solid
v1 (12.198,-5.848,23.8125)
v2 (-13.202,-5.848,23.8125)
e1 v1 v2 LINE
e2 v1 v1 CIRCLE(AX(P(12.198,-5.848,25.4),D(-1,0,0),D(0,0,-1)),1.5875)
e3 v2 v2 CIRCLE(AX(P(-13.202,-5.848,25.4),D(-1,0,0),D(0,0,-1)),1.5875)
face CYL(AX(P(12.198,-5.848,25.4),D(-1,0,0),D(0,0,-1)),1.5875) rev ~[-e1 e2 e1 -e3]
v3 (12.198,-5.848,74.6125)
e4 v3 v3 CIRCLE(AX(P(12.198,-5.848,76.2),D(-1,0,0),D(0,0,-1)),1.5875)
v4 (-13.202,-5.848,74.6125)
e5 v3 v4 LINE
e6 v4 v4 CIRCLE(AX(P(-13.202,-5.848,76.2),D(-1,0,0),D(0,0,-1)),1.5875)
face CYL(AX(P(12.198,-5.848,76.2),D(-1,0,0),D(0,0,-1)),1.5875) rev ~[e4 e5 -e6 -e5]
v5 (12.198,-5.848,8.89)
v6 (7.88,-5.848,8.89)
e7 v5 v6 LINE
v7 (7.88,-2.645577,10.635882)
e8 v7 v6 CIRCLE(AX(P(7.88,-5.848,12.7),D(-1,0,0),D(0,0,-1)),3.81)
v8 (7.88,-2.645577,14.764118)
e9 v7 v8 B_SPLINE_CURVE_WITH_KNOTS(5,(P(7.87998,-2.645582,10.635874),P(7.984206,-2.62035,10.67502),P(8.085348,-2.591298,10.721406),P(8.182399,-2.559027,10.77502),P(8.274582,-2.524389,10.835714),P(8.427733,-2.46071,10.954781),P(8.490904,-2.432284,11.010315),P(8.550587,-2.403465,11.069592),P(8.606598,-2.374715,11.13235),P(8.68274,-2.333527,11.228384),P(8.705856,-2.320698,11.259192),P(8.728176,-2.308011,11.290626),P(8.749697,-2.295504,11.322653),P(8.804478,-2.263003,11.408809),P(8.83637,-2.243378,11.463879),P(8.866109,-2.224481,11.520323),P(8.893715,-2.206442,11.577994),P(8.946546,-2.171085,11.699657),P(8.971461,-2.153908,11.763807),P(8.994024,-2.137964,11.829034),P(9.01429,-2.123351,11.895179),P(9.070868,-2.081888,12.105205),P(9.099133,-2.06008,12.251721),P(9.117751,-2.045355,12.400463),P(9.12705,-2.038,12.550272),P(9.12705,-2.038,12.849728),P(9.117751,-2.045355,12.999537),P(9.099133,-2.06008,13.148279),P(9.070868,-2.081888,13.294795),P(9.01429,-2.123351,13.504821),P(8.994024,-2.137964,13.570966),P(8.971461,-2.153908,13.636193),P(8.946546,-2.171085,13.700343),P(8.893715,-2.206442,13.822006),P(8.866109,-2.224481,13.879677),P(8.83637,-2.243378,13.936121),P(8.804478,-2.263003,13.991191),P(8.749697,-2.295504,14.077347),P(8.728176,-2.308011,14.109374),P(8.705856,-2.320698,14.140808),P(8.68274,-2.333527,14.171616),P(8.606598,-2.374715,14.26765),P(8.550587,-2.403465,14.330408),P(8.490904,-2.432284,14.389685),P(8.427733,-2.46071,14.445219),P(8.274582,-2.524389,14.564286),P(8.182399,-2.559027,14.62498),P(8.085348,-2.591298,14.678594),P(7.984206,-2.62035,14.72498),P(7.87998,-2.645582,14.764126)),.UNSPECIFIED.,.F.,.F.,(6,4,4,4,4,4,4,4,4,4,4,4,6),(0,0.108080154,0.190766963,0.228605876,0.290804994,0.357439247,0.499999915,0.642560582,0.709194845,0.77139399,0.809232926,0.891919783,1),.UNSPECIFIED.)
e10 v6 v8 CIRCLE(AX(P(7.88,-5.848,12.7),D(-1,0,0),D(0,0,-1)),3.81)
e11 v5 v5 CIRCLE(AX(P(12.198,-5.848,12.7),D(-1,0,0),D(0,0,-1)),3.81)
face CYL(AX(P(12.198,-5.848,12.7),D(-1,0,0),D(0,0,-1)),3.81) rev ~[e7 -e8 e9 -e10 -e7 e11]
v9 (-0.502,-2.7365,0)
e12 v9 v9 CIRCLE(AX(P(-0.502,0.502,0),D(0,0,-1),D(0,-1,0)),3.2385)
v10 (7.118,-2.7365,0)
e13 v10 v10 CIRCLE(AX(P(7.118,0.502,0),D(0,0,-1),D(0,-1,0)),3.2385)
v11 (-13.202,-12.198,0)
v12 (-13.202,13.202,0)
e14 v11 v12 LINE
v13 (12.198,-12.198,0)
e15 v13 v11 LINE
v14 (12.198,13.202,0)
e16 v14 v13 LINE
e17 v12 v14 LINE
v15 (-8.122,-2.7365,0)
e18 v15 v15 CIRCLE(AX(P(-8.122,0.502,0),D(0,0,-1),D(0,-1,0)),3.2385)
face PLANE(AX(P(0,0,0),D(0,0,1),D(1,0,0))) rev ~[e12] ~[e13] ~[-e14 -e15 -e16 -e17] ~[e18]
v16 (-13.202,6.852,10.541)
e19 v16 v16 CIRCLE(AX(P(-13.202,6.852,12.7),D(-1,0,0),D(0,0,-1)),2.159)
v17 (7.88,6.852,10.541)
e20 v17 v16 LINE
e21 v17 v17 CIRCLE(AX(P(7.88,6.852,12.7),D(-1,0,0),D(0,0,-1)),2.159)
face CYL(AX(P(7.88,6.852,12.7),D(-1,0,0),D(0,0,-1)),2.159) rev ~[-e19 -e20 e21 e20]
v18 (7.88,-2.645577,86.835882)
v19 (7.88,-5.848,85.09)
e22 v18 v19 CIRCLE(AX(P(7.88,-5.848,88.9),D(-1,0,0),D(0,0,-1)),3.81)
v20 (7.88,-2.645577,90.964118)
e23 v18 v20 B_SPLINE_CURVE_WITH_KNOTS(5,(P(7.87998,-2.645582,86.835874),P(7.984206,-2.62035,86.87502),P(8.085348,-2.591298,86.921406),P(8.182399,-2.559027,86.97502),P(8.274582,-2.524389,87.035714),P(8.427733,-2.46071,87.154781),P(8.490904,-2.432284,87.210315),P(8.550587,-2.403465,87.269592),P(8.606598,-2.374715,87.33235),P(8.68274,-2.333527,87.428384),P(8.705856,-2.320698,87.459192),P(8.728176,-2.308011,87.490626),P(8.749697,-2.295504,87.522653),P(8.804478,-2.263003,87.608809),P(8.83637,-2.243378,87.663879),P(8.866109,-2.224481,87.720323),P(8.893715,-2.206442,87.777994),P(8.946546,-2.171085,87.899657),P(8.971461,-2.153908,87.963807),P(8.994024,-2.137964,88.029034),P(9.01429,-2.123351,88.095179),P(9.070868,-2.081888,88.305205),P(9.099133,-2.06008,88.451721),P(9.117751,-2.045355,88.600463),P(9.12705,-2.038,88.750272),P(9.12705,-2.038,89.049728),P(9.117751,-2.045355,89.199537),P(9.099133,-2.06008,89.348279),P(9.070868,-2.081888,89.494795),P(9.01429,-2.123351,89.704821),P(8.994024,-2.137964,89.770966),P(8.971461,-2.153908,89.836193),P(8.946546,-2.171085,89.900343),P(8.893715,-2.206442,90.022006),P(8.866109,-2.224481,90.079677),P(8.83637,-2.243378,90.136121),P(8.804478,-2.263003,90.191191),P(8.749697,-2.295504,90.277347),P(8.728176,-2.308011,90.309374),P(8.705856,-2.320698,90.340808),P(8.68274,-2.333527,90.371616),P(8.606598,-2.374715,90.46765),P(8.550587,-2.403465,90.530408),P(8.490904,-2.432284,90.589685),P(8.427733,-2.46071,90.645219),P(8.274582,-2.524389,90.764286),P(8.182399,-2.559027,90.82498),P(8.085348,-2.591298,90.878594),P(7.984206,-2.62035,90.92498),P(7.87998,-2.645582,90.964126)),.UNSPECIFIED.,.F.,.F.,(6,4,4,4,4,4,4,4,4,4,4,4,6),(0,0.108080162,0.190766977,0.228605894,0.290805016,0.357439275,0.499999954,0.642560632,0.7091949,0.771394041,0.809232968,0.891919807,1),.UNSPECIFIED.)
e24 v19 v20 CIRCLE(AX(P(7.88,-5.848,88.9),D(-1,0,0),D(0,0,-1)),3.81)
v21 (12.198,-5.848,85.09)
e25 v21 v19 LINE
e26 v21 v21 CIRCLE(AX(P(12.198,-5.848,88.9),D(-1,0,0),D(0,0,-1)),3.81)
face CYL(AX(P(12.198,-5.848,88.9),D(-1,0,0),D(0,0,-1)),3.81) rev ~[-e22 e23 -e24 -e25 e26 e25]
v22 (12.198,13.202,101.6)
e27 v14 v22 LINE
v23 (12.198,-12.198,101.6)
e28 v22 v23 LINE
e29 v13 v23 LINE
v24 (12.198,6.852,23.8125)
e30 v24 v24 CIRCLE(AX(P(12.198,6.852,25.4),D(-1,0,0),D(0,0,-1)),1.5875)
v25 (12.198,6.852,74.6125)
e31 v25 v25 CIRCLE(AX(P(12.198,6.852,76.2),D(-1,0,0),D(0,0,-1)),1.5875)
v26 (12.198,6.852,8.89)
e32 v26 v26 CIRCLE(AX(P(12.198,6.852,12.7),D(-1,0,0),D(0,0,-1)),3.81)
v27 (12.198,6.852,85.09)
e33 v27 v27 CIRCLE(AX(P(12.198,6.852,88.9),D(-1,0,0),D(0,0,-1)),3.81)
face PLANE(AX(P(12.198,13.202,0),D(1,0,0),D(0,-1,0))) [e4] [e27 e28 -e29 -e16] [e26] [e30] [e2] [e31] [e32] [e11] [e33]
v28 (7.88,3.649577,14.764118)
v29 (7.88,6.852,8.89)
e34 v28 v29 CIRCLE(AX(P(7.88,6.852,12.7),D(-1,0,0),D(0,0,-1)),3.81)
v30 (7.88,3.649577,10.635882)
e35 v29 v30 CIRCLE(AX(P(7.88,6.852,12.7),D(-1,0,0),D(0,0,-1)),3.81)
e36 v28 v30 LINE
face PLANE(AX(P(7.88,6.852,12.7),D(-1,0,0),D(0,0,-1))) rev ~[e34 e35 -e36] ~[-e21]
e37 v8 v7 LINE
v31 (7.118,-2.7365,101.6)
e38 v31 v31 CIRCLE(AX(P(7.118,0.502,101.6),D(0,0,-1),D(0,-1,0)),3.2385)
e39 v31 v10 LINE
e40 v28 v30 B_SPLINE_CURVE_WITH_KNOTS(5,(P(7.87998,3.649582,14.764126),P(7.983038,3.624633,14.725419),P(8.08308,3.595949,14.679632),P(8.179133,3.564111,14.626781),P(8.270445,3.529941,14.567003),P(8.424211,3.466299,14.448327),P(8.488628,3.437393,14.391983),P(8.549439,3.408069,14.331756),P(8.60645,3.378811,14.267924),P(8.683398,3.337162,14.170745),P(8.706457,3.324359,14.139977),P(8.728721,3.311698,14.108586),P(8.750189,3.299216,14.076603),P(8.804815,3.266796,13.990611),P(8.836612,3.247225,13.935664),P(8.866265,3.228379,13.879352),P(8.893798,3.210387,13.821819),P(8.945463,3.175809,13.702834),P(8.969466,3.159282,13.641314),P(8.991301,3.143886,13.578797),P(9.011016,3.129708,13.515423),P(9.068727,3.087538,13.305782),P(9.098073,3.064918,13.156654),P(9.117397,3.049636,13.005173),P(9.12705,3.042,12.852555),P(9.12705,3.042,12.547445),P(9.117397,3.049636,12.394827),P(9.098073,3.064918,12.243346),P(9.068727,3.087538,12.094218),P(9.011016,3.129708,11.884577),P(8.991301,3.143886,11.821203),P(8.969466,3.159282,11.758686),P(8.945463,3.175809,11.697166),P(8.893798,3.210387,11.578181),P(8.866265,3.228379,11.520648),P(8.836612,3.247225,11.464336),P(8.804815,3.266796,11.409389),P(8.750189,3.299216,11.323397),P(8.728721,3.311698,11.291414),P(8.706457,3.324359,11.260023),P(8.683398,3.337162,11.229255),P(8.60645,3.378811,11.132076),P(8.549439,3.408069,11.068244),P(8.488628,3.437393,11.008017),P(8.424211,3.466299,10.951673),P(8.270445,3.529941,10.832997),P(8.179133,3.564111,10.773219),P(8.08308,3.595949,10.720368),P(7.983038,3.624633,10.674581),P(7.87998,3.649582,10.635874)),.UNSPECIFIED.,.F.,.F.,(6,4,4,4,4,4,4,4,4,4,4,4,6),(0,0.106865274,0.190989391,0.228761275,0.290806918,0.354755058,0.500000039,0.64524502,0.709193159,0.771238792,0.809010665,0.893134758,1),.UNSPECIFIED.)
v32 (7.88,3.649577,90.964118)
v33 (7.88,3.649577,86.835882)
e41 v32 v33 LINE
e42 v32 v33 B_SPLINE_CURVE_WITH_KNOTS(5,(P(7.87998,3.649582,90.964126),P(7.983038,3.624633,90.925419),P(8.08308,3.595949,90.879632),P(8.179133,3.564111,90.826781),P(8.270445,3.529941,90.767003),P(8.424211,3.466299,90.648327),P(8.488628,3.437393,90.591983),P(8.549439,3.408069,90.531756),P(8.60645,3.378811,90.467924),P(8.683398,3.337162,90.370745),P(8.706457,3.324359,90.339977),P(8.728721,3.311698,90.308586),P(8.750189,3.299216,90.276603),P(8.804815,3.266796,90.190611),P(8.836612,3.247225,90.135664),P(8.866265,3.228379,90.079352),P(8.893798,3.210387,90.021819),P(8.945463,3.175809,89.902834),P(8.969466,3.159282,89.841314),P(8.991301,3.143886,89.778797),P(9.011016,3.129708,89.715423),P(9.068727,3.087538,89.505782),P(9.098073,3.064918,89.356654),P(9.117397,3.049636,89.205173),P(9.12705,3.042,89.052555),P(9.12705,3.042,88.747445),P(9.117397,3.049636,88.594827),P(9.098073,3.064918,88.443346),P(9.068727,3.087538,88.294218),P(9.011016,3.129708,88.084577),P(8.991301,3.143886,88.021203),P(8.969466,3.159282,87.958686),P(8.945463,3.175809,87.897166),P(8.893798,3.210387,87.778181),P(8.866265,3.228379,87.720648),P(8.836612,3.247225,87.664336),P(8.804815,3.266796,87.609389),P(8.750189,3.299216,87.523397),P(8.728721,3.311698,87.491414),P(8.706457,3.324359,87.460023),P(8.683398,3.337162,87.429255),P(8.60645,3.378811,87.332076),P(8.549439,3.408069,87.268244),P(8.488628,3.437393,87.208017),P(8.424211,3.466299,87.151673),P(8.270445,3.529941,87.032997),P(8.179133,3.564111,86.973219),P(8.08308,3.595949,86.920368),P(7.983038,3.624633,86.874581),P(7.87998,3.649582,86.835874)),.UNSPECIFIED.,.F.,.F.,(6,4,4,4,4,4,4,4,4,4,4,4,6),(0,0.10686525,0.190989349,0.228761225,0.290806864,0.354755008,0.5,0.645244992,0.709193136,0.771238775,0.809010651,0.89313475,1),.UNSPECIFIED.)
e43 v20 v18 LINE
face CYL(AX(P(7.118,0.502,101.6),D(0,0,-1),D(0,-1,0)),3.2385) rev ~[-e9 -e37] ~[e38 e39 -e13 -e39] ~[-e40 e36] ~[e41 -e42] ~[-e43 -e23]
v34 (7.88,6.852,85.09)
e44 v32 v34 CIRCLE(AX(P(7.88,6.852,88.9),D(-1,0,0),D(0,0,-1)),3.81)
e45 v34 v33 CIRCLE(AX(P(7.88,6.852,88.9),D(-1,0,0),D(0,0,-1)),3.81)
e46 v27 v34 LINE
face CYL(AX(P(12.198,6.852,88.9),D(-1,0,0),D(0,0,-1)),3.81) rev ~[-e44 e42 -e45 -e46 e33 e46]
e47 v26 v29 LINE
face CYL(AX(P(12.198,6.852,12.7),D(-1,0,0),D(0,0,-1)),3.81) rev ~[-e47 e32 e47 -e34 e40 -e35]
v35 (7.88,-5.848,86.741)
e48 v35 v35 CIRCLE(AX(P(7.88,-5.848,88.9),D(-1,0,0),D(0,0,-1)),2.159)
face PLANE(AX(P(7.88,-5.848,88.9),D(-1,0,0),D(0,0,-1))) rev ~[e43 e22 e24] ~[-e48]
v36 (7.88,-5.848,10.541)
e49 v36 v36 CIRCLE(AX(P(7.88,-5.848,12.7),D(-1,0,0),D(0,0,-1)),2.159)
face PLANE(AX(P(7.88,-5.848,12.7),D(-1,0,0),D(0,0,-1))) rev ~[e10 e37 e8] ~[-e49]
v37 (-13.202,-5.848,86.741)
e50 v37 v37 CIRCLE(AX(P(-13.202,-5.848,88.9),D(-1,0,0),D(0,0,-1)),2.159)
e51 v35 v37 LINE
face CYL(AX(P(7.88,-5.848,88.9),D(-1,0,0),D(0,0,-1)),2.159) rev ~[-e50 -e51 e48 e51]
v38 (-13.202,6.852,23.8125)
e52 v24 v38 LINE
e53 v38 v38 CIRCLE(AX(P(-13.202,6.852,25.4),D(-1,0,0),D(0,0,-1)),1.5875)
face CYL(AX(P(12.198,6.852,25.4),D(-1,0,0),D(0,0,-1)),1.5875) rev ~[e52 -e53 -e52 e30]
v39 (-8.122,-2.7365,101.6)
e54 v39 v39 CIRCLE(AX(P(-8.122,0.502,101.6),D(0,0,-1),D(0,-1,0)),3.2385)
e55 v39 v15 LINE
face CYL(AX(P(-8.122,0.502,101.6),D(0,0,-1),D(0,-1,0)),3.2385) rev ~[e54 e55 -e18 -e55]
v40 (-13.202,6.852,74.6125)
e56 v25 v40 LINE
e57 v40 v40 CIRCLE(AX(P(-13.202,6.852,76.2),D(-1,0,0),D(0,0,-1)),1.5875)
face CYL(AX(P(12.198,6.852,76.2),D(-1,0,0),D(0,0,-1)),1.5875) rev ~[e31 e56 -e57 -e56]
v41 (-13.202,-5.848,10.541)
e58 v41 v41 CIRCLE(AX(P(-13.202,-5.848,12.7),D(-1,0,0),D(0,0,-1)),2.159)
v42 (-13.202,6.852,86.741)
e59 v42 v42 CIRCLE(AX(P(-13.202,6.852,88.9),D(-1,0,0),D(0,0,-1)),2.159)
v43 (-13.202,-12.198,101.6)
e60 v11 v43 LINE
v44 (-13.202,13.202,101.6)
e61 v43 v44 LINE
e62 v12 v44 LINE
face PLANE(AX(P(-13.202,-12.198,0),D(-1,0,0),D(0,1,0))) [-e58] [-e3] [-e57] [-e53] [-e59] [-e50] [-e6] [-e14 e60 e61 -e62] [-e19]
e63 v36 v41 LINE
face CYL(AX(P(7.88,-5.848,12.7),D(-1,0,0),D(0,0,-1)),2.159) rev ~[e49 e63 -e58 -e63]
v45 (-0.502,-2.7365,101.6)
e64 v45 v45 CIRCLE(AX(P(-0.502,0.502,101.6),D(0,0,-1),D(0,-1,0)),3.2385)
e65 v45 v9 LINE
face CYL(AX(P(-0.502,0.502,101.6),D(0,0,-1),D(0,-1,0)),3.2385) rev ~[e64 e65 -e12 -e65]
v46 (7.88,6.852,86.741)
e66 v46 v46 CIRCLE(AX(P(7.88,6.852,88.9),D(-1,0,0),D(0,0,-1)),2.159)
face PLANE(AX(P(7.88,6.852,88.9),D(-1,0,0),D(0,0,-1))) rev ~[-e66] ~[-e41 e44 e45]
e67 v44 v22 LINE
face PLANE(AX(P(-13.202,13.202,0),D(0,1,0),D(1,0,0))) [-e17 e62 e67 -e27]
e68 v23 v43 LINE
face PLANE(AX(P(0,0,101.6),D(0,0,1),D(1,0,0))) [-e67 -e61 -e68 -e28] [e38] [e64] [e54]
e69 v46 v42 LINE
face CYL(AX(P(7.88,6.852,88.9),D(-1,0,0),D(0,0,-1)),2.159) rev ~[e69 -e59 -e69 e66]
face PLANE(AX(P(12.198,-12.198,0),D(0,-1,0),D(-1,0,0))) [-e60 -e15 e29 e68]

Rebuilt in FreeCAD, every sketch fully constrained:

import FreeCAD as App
import Part
import Sketcher
from FreeCAD import Vector
Q = App.Units.Quantity


def add_polygon(sketch, points):
    """Adds a closed chain of lines whose ends are joined by coincident constraints."""
    first, n = sketch.GeometryCount, len(points)
    for a, b in zip(points, points[1:] + points[:1]):
        sketch.addGeometry(Part.LineSegment(App.Vector(*a, 0), App.Vector(*b, 0)), False)
    for i in range(n):
        sketch.addConstraint(Sketcher.Constraint("Coincident", first + i, 2, first + (i + 1) % n, 1))

doc = App.newDocument("Part")
body = doc.addObject("PartDesign::Body", "Body")

sketch1 = body.newObject("Sketcher::SketchObject", "Sketch")
sketch1.AttachmentSupport = (doc.getObject("XY_Plane"), [""])
sketch1.MapMode = "FlatFace"
add_polygon(sketch1, [(12.198, 13.202), (-13.202, 13.202), (-13.202, -12.198), (12.198, -12.198)])
sketch1.addConstraint([
    Sketcher.Constraint("Horizontal", 0),
    Sketcher.Constraint("Vertical", 1),
    Sketcher.Constraint("Horizontal", 2),
    Sketcher.Constraint("Vertical", 3),
    Sketcher.Constraint("Equal", 2, 1),
    Sketcher.Constraint("DistanceX", 0, 2, 0, 1, Q("1 in")),
    Sketcher.Constraint("DistanceX", 0, 2, -1, 1, Q("13.202 mm")),
    Sketcher.Constraint("DistanceY", -1, 1, 0, 2, Q("13.202 mm")),
])
pad1 = body.newObject("PartDesign::Pad", "Pad")
pad1.Profile = sketch1
pad1.Length = Q("4 in")

sketch2 = body.newObject("Sketcher::SketchObject", "Sketch001")
sketch2.AttachmentSupport = (doc.getObject("YZ_Plane"), [""])
sketch2.MapMode = "FlatFace"
sketch2.AttachmentOffset = App.Placement(Vector(0, 0, 12.198), App.Rotation())
sketch2.addGeometry([
    Part.Circle(Vector(6.852, 76.2, 0), Vector(0, 0, 1), 1.5875),
    Part.Circle(Vector(-5.848, 76.2, 0), Vector(0, 0, 1), 1.5875),
    Part.Circle(Vector(6.852, 25.4, 0), Vector(0, 0, 1), 1.5875),
    Part.Circle(Vector(-5.848, 25.4, 0), Vector(0, 0, 1), 1.5875),
], False)
sketch2.addConstraint([
    Sketcher.Constraint("Equal", 0, 1),
    Sketcher.Constraint("Equal", 1, 2),
    Sketcher.Constraint("Equal", 2, 3),
    Sketcher.Constraint("Horizontal", 0, 3, 1, 3),
    Sketcher.Constraint("Horizontal", 2, 3, 3, 3),
    Sketcher.Constraint("Vertical", 0, 3, 2, 3),
    Sketcher.Constraint("Vertical", 1, 3, 3, 3),
    Sketcher.Constraint("Diameter", 0, Q("0.125 in")),
    Sketcher.Constraint("DistanceY", -1, 1, 0, 3, Q("3 in")),
    Sketcher.Constraint("DistanceY", -1, 1, 2, 3, Q("1 in")),
    Sketcher.Constraint("DistanceX", 1, 3, 0, 3, Q("0.5 in")),
    Sketcher.Constraint("DistanceX", -1, 1, 0, 3, Q("6.852 mm")),
])
doc.recompute()
hole = body.newObject("PartDesign::Hole", "Hole")
hole.Profile = sketch2
hole.ThreadType = "None"
hole.Diameter = Q("0.125 in")
hole.DepthType = "Dimension"
hole.Depth = Q("1 in")
hole.DrillPoint = "Angled"
hole.DrillPointAngle = 118.188

sketch3 = body.newObject("Sketcher::SketchObject", "Sketch002")
sketch3.AttachmentSupport = (doc.getObject("XY_Plane"), [""])
sketch3.MapMode = "FlatFace"
sketch3.AttachmentOffset = App.Placement(Vector(0, 0, 4 * 25.4), App.Rotation())
sketch3.addGeometry([
    Part.Circle(Vector(-8.122, 0.502, 0), Vector(0, 0, 1), 3.2385),
    Part.Circle(Vector(-0.502, 0.502, 0), Vector(0, 0, 1), 3.2385),
    Part.Circle(Vector(7.118, 0.502, 0), Vector(0, 0, 1), 3.2385),
], False)
sketch3.addConstraint([
    Sketcher.Constraint("Equal", 0, 1),
    Sketcher.Constraint("Equal", 1, 2),
    Sketcher.Constraint("Horizontal", 0, 3, 1, 3),
    Sketcher.Constraint("Horizontal", 1, 3, 2, 3),
    Sketcher.Constraint("Diameter", 0, Q("0.255 in")),
    Sketcher.Constraint("DistanceX", 0, 3, 1, 3, Q("0.3 in")),
    Sketcher.Constraint("DistanceX", 1, 3, 2, 3, Q("0.3 in")),
    Sketcher.Constraint("DistanceX", 0, 3, -1, 1, Q("8.122 mm")),
    Sketcher.Constraint("DistanceY", -1, 1, 0, 3, Q("0.502 mm")),
])
doc.recompute()
hole2 = body.newObject("PartDesign::Hole", "Hole001")
hole2.Profile = sketch3
hole2.ThreadType = "None"
hole2.Diameter = Q("0.255 in")
hole2.DepthType = "ThroughAll"

sketch4 = body.newObject("Sketcher::SketchObject", "Sketch003")
sketch4.AttachmentSupport = (doc.getObject("YZ_Plane"), [""])
sketch4.MapMode = "FlatFace"
sketch4.AttachmentOffset = App.Placement(Vector(0, 0, 12.198), App.Rotation())
sketch4.addGeometry([
    Part.Circle(Vector(6.852, 12.7, 0), Vector(0, 0, 1), 2.159),
    Part.Circle(Vector(-5.848, 12.7, 0), Vector(0, 0, 1), 2.159),
    Part.Circle(Vector(6.852, 88.9, 0), Vector(0, 0, 1), 2.159),
    Part.Circle(Vector(-5.848, 88.9, 0), Vector(0, 0, 1), 2.159),
], False)
sketch4.addConstraint([
    Sketcher.Constraint("Equal", 0, 1),
    Sketcher.Constraint("Equal", 1, 2),
    Sketcher.Constraint("Equal", 2, 3),
    Sketcher.Constraint("Horizontal", 0, 3, 1, 3),
    Sketcher.Constraint("Horizontal", 2, 3, 3, 3),
    Sketcher.Constraint("Vertical", 0, 3, 2, 3),
    Sketcher.Constraint("Vertical", 1, 3, 3, 3),
    Sketcher.Constraint("Diameter", 0, Q("0.17 in")),
    Sketcher.Constraint("DistanceY", 0, 3, 2, 3, Q("3 in")),
    Sketcher.Constraint("DistanceY", -1, 1, 0, 3, Q("0.5 in")),
    Sketcher.Constraint("DistanceX", 1, 3, 0, 3, Q("0.5 in")),
    Sketcher.Constraint("DistanceX", -1, 1, 0, 3, Q("6.852 mm")),
])
doc.recompute()
hole3 = body.newObject("PartDesign::Hole", "Hole002")
hole3.Profile = sketch4
hole3.ThreadType = "None"
hole3.Diameter = Q("0.17 in")
hole3.DepthType = "ThroughAll"
hole3.HoleCutType = "Counterbore"
hole3.HoleCutDiameter = Q("0.3 in")
hole3.HoleCutDepth = Q("0.17 in")

doc.recompute()
